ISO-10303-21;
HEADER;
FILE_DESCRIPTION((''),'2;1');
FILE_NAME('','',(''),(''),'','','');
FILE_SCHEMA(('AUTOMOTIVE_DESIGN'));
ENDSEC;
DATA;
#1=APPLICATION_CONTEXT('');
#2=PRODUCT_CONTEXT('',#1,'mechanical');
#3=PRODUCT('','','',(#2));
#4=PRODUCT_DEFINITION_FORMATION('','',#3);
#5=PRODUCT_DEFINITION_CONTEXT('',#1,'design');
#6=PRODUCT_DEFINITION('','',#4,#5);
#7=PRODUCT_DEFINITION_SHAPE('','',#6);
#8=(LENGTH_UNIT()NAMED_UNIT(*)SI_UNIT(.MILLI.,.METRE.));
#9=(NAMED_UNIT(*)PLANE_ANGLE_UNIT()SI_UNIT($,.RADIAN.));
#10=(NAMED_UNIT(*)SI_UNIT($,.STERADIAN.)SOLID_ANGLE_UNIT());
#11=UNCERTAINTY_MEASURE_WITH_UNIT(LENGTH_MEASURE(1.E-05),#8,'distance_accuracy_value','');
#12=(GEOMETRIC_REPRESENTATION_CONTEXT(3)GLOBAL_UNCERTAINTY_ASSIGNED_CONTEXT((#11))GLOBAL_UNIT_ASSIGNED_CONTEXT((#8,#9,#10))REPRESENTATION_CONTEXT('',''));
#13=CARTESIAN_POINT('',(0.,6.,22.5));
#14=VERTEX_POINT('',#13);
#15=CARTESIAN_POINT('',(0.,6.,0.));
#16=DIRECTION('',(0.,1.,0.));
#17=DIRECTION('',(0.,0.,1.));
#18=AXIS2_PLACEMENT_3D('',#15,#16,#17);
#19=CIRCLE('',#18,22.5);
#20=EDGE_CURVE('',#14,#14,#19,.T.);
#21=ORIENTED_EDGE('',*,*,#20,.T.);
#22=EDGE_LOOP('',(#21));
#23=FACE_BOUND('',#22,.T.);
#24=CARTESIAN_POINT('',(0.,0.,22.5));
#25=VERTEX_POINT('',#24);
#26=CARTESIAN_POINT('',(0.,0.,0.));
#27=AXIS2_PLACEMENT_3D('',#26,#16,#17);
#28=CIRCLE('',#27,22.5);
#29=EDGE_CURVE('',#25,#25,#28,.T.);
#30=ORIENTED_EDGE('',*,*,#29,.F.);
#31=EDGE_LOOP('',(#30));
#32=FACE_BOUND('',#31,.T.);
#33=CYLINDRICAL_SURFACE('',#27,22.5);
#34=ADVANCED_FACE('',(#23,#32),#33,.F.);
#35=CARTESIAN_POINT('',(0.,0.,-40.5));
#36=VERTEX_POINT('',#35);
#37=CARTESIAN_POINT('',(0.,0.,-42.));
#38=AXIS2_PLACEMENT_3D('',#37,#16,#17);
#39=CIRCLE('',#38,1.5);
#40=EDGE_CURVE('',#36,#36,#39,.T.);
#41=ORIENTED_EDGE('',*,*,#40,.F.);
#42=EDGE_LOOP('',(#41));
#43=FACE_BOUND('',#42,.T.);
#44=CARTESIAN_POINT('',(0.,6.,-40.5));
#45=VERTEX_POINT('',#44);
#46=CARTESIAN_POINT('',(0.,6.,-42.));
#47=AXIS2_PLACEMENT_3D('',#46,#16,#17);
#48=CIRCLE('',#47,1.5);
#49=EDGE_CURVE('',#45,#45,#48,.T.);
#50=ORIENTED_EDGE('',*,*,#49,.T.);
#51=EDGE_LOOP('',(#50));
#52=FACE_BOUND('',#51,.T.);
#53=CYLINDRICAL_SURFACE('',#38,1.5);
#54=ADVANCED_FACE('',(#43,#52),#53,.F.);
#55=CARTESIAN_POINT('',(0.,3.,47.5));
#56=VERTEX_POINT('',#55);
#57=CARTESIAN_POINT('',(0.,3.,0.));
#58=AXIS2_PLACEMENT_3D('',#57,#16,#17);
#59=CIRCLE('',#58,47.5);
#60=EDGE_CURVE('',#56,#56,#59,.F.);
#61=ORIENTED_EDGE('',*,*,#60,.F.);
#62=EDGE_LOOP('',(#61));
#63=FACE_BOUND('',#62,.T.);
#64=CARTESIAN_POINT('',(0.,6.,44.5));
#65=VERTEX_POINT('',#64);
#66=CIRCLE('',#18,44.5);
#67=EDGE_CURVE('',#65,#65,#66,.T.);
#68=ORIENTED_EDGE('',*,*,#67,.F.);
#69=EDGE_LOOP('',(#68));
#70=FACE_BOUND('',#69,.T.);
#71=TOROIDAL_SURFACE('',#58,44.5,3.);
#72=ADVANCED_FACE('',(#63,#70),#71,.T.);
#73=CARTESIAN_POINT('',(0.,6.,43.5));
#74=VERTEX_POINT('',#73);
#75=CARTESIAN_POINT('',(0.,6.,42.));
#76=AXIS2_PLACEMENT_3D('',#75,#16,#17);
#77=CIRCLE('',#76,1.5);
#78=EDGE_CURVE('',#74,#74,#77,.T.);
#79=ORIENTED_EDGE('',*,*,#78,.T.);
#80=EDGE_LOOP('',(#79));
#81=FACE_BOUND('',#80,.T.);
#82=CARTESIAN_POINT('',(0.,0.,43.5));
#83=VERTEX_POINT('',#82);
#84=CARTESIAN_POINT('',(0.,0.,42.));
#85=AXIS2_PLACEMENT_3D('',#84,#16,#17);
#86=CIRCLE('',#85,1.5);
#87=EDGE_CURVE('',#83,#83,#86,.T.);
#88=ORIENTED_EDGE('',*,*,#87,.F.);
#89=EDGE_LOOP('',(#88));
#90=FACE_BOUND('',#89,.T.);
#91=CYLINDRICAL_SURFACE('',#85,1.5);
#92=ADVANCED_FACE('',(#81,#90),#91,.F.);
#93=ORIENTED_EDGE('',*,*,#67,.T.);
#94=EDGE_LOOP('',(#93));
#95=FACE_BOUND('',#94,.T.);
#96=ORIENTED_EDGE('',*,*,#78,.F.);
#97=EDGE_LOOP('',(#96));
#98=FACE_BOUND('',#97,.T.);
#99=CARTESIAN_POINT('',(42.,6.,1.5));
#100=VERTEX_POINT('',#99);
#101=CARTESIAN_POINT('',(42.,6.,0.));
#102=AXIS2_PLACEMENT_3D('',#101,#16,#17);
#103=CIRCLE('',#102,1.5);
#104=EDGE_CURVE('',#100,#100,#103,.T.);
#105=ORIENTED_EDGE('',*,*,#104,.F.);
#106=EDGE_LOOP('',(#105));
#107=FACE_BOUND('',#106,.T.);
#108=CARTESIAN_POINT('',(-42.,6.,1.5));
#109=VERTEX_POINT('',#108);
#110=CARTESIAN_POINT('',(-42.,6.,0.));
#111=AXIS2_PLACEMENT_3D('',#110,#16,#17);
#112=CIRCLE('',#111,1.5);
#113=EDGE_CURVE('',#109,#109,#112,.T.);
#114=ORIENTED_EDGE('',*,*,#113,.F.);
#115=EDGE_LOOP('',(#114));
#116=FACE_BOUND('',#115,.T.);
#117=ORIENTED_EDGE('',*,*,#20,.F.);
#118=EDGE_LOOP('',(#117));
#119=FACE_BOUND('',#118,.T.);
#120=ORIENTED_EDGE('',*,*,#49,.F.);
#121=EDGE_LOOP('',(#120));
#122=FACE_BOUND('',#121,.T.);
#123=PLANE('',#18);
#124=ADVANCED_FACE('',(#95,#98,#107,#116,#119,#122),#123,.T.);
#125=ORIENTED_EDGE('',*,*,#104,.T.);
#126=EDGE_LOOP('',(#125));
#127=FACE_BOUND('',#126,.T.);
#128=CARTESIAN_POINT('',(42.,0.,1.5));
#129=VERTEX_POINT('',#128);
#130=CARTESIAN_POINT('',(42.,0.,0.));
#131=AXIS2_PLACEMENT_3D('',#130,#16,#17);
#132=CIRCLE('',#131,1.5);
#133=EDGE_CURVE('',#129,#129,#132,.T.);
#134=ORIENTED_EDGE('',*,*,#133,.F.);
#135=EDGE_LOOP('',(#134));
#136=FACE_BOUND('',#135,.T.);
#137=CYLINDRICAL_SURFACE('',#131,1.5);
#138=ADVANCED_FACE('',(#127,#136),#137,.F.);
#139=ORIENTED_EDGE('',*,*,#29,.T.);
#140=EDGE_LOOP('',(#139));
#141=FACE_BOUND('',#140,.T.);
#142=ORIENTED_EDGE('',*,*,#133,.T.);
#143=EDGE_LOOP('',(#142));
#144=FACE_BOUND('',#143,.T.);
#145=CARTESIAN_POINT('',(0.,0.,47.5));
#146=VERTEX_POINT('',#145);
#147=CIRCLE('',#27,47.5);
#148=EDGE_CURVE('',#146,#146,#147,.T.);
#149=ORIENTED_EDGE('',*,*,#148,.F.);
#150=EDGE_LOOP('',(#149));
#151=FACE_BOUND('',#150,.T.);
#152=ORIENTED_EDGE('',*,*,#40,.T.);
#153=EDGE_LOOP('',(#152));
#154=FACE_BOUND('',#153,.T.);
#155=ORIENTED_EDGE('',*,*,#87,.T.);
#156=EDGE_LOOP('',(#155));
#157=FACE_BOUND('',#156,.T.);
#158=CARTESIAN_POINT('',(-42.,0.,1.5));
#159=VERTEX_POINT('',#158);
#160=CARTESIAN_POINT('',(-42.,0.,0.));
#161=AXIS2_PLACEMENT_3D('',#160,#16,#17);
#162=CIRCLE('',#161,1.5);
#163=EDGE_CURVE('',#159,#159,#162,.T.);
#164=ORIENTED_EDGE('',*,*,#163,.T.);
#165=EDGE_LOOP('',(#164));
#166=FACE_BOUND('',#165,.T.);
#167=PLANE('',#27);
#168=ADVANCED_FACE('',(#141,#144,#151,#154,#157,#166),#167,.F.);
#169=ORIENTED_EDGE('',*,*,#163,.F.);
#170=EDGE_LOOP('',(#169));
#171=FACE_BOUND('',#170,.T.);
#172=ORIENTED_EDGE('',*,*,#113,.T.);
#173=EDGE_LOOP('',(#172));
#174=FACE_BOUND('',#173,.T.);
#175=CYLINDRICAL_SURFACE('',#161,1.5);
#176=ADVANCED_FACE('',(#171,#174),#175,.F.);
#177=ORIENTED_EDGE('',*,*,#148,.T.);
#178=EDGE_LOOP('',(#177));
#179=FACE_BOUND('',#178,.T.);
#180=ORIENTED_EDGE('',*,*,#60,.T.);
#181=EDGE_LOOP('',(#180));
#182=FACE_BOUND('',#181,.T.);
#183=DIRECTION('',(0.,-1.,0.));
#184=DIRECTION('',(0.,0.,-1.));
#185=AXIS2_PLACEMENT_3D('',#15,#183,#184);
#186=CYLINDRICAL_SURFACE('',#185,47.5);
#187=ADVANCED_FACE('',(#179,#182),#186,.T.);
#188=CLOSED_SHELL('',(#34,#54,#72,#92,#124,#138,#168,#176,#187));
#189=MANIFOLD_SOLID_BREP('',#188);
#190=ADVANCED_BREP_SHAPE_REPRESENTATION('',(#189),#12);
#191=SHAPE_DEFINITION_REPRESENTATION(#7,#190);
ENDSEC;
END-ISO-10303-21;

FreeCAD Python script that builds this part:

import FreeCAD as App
import Part
import Sketcher
Q = App.Units.Quantity


def edges_at(feature, points):
    """Names of the edges that pass closest to the given points."""
    edges = feature.Shape.Edges
    near = lambda p: min(range(len(edges)), key=lambda i: edges[i].distToShape(Part.Vertex(*p))[0])
    return sorted({f"Edge{near(p) + 1}" for p in points})

doc = App.newDocument("Part")
body = doc.addObject("PartDesign::Body", "Body")

sketch1 = body.newObject("Sketcher::SketchObject", "Sketch")
sketch1.AttachmentSupport = (doc.getObject("XZ_Plane"), [""])
sketch1.MapMode = "FlatFace"
sketch1.addGeometry(Part.Circle(App.Vector(0, 0, 0), App.Vector(0, 0, 1), 47.5), False)
sketch1.addConstraint(Sketcher.Constraint("Coincident", 0, 3, -1, 1))
sketch1.addConstraint(Sketcher.Constraint("Diameter", 0, Q("95 mm")))
pad1 = body.newObject("PartDesign::Pad", "Pad")
pad1.Profile = sketch1
pad1.Length = 6
pad1.Reversed = True

sketch2 = body.newObject("Sketcher::SketchObject", "Sketch001")
sketch2.AttachmentSupport = (doc.getObject("XZ_Plane"), [""])
sketch2.MapMode = "FlatFace"
sketch2.AttachmentOffset = App.Placement(App.Vector(0, 0, -6), App.Rotation())
sketch2.addGeometry(Part.Circle(App.Vector(0, -42, 0), App.Vector(0, 0, 1), 1.5), False)
sketch2.addGeometry(Part.Circle(App.Vector(42, 0, 0), App.Vector(0, 0, 1), 1.5), False)
sketch2.addGeometry(Part.Circle(App.Vector(0, 42, 0), App.Vector(0, 0, 1), 1.5), False)
sketch2.addGeometry(Part.Circle(App.Vector(-42, 0, 0), App.Vector(0, 0, 1), 1.5), False)
sketch2.addConstraint(Sketcher.Constraint("Equal", 0, 1))
sketch2.addConstraint(Sketcher.Constraint("Equal", 1, 2))
sketch2.addConstraint(Sketcher.Constraint("Equal", 2, 3))
sketch2.addConstraint(Sketcher.Constraint("Symmetric", 0, 3, 2, 3, -1, 1))
sketch2.addConstraint(Sketcher.Constraint("Symmetric", 1, 3, 3, 3, -1, 1))
sketch2.addConstraint(Sketcher.Constraint("PointOnObject", 0, 3, -2))
sketch2.addConstraint(Sketcher.Constraint("PointOnObject", 1, 3, -1))
sketch2.addConstraint(Sketcher.Constraint("Diameter", 0, Q("3 mm")))
sketch2.addConstraint(Sketcher.Constraint("DistanceY", 0, 3, -1, 1, Q("42 mm")))
sketch2.addConstraint(Sketcher.Constraint("DistanceX", -1, 1, 1, 3, Q("42 mm")))
pocket1 = body.newObject("PartDesign::Pocket", "Pocket")
pocket1.Profile = sketch2
pocket1.Type = "ThroughAll"
pocket1.Reversed = True

sketch3 = body.newObject("Sketcher::SketchObject", "Sketch002")
sketch3.AttachmentSupport = (doc.getObject("XZ_Plane"), [""])
sketch3.MapMode = "FlatFace"
sketch3.AttachmentOffset = App.Placement(App.Vector(0, 0, -6), App.Rotation())
sketch3.addGeometry(Part.Circle(App.Vector(0, 0, 0), App.Vector(0, 0, 1), 22.5), False)
sketch3.addConstraint(Sketcher.Constraint("Coincident", 0, 3, -1, 1))
sketch3.addConstraint(Sketcher.Constraint("Diameter", 0, Q("45 mm")))
pocket2 = body.newObject("PartDesign::Pocket", "Pocket001")
pocket2.Profile = sketch3
pocket2.Type = "ThroughAll"
pocket2.Reversed = True
doc.recompute()

fillet = body.newObject("PartDesign::Fillet", "Fillet")
fillet.Base = (pocket2, edges_at(pocket2, [(0, 6, -47.5)]))
fillet.Radius = 3

doc.recompute()
